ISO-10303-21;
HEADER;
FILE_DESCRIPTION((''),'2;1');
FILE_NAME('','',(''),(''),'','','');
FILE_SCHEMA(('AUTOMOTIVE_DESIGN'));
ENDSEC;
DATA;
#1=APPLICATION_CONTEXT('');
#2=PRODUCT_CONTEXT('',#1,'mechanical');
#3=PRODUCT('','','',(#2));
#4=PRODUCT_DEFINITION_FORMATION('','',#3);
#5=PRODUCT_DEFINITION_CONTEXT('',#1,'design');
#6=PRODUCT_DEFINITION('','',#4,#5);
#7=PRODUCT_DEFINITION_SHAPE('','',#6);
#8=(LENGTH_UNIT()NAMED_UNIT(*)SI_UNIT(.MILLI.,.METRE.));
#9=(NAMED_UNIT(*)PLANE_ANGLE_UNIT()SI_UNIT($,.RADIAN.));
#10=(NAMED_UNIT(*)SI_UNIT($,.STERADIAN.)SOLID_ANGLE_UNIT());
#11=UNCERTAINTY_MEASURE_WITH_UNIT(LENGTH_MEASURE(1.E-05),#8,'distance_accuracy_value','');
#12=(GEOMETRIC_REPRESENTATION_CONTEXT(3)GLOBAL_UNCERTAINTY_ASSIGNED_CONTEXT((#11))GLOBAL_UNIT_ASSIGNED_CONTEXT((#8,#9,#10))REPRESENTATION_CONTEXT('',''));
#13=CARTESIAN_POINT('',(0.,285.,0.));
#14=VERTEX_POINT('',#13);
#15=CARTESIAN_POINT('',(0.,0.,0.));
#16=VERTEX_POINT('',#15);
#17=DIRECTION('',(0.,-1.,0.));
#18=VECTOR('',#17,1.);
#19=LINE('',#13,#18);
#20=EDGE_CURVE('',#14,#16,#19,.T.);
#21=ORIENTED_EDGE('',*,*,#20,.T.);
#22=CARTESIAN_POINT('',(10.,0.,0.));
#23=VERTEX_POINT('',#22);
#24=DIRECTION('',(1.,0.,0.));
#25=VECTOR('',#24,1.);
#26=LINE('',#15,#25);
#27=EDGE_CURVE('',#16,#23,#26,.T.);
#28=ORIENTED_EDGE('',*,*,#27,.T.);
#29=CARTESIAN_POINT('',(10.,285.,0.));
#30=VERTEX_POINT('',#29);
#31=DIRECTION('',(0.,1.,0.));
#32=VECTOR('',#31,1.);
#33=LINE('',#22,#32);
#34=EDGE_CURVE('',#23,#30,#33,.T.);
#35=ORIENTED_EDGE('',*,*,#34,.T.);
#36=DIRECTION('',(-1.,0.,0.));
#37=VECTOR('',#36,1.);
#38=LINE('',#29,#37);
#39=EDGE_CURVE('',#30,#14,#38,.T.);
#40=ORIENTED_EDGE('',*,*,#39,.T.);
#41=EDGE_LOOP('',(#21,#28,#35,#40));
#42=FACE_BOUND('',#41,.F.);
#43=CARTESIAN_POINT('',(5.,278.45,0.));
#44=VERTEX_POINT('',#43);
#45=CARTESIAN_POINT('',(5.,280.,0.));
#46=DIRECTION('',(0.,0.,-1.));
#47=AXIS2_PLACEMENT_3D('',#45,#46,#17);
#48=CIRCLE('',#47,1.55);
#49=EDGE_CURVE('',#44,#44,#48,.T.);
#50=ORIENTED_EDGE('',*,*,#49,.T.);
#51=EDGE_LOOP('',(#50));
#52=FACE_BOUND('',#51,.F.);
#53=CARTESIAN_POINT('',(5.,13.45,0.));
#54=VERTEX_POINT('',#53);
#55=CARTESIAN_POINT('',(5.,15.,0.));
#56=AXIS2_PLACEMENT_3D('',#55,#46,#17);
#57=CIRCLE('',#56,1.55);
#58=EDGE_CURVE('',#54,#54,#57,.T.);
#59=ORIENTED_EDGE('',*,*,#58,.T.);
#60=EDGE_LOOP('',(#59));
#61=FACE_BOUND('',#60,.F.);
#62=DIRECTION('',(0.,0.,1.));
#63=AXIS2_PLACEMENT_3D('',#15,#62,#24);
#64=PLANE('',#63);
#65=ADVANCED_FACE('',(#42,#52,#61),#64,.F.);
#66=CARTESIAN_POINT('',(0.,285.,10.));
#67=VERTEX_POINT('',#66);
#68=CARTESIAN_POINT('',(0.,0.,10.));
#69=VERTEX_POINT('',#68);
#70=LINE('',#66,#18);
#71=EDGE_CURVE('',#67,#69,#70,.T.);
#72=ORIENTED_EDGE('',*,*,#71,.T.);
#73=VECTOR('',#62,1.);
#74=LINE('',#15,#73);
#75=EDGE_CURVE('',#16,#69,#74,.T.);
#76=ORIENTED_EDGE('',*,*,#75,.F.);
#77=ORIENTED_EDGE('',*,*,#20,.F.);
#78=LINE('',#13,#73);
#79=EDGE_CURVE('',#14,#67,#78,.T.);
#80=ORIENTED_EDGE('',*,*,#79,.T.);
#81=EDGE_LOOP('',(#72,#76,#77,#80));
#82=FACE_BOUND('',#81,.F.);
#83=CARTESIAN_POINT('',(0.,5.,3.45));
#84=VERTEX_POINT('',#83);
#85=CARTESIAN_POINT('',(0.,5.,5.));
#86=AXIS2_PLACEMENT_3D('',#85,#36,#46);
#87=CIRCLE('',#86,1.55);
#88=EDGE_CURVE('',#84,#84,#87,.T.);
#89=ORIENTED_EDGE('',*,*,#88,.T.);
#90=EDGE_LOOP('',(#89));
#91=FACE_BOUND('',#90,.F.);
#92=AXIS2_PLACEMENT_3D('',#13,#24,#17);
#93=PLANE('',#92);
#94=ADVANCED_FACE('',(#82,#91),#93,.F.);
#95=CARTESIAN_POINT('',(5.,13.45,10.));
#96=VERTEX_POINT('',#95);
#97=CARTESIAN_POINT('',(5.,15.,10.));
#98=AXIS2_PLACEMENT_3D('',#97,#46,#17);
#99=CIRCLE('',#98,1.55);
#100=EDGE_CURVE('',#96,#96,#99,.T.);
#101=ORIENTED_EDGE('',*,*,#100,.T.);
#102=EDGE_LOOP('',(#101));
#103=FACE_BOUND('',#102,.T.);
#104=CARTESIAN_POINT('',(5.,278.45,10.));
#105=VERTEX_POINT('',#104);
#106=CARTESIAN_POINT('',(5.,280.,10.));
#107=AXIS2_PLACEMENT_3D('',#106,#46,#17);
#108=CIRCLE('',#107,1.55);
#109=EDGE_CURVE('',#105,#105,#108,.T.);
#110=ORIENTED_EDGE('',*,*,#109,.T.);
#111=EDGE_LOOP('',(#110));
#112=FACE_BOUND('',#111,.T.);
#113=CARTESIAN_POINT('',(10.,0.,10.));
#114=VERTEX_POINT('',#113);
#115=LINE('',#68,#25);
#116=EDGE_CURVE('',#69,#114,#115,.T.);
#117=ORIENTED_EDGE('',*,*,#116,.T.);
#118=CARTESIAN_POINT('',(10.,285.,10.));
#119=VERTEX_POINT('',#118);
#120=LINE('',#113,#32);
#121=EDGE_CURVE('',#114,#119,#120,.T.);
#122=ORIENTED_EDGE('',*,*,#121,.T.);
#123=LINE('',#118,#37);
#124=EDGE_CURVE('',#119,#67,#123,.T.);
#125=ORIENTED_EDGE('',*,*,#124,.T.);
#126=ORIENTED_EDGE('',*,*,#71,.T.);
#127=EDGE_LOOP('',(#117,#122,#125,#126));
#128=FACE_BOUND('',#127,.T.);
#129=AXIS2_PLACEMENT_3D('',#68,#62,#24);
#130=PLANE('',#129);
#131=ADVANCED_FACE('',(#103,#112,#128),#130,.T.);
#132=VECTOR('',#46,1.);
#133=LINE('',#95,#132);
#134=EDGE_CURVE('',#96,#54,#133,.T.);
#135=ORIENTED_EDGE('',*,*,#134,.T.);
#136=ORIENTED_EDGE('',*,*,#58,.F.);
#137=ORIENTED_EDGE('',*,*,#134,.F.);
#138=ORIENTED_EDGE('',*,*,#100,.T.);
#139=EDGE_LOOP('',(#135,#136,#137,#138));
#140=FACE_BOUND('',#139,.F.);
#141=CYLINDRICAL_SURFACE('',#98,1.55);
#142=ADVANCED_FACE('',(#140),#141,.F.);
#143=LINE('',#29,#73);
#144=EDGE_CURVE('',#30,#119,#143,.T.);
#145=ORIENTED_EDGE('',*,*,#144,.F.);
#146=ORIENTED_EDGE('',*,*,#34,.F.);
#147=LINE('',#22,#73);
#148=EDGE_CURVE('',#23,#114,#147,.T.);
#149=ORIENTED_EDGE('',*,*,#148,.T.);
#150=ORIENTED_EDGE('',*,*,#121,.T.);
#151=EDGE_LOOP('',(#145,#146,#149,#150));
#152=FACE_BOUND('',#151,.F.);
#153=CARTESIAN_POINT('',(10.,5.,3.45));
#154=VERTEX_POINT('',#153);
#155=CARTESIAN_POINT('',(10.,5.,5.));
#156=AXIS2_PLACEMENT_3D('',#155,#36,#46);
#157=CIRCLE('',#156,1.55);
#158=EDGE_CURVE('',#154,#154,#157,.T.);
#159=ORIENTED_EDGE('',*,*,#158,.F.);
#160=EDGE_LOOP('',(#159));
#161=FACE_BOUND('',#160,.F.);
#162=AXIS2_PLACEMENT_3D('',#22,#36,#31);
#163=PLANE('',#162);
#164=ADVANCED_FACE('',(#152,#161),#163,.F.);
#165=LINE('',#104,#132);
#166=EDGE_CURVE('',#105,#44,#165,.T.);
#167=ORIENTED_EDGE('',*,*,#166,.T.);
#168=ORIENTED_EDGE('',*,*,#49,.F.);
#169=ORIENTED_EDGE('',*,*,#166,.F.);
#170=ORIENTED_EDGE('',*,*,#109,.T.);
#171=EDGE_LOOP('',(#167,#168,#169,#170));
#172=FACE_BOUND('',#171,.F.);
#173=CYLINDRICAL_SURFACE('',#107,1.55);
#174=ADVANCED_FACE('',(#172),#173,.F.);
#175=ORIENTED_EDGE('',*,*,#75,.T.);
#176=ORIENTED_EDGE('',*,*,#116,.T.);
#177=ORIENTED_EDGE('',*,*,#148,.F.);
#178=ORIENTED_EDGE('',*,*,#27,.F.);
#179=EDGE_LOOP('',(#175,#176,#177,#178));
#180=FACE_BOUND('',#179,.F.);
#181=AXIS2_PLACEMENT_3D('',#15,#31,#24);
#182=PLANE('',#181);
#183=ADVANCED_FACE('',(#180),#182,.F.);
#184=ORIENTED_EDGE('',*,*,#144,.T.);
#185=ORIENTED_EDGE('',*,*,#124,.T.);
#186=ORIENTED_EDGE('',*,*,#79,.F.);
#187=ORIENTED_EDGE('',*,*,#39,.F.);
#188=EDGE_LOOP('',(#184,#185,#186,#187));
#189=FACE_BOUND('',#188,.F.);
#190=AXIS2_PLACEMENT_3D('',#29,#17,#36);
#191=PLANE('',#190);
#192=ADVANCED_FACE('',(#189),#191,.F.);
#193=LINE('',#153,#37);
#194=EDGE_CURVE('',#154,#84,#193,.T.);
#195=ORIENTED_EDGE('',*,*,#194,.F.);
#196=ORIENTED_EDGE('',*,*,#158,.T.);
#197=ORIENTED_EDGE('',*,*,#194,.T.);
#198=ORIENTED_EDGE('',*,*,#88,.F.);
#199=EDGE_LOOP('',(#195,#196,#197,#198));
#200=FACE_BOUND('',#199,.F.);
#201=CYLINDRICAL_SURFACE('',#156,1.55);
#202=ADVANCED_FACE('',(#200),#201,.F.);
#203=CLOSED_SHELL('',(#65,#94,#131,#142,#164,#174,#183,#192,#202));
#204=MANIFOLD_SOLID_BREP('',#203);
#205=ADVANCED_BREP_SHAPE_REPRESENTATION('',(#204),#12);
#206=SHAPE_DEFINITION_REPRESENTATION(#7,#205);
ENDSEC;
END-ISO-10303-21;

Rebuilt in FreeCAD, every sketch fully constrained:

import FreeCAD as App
import Part
import Sketcher

V = App.Vector


def add_polygon(sketch, points):
    """Adds a closed chain of lines whose ends are joined by coincident constraints."""
    first, n = sketch.GeometryCount, len(points)
    for a, b in zip(points, points[1:] + points[:1]):
        sketch.addGeometry(Part.LineSegment(App.Vector(*a, 0), App.Vector(*b, 0)), False)
    for i in range(n):
        sketch.addConstraint(Sketcher.Constraint("Coincident", first + i, 2, first + (i + 1) % n, 1))

doc = App.newDocument("Part")
body = doc.addObject("PartDesign::Body", "Body")

# Sketch on XY plane
sketch1 = body.newObject("Sketcher::SketchObject", "Sketch")
sketch1.AttachmentSupport = (doc.getObject("XY_Plane"), [""])
sketch1.MapMode = "FlatFace"
add_polygon(sketch1, [(0, 285), (0, 0), (10, 0), (10, 285)])  # lines 0-3
sketch1.addConstraint([
    Sketcher.Constraint("Vertical", 0),
    Sketcher.Constraint("Horizontal", 1),
    Sketcher.Constraint("Vertical", 2),
    Sketcher.Constraint("Horizontal", 3),
    Sketcher.Constraint("Coincident", 0, 2, -1, 1),
    Sketcher.Constraint("DistanceX", 1, 1, 1, 2, 10.0),
    Sketcher.Constraint("DistanceY", 0, 2, 0, 1, 285.0),
])
pad1 = body.newObject("PartDesign::Pad", "Pad")
pad1.Profile = sketch1
pad1.Length = 10

# Sketch on YZ plane
sketch2 = body.newObject("Sketcher::SketchObject", "Sketch001")
sketch2.AttachmentSupport = (doc.getObject("YZ_Plane"), [""])
sketch2.MapMode = "FlatFace"
sketch2.AttachmentOffset = App.Placement(V(0, 0, 10), App.Rotation())
sketch2.addGeometry(Part.Circle(V(5, 5, 0), V(0, 0, 1), 1.6), False)
sketch2.addConstraint([
    Sketcher.Constraint("Diameter", 0, 3.1),
    Sketcher.Constraint("DistanceX", -1, 1, 0, 3, 5.0),
    Sketcher.Constraint("DistanceY", -1, 1, 0, 3, 5.0),
])
doc.recompute()
hole = body.newObject("PartDesign::Hole", "Hole")
hole.Profile = sketch2
hole.ThreadType = "None"
hole.Diameter = 3.1
hole.DepthType = "ThroughAll"

# Sketch on XY plane
sketch3 = body.newObject("Sketcher::SketchObject", "Sketch002")
sketch3.AttachmentSupport = (doc.getObject("XY_Plane"), [""])
sketch3.MapMode = "FlatFace"
sketch3.AttachmentOffset = App.Placement(V(0, 0, 10), App.Rotation())
sketch3.addGeometry([
    Part.Circle(V(5, 15, 0), V(0, 0, 1), 1.6),
    Part.Circle(V(5, 280, 0), V(0, 0, 1), 1.6),
], False)
sketch3.addConstraint([
    Sketcher.Constraint("Equal", 0, 1),
    Sketcher.Constraint("Vertical", 0, 3, 1, 3),
    Sketcher.Constraint("Diameter", 0, 3.1),
    Sketcher.Constraint("DistanceX", -1, 1, 0, 3, 5.0),
    Sketcher.Constraint("DistanceY", -1, 1, 0, 3, 15.0),
    Sketcher.Constraint("DistanceY", -1, 1, 1, 3, 280.0),
])
doc.recompute()
hole2 = body.newObject("PartDesign::Hole", "Hole001")
hole2.Profile = sketch3
hole2.ThreadType = "None"
hole2.Diameter = 3.1
hole2.DepthType = "ThroughAll"

doc.recompute()
